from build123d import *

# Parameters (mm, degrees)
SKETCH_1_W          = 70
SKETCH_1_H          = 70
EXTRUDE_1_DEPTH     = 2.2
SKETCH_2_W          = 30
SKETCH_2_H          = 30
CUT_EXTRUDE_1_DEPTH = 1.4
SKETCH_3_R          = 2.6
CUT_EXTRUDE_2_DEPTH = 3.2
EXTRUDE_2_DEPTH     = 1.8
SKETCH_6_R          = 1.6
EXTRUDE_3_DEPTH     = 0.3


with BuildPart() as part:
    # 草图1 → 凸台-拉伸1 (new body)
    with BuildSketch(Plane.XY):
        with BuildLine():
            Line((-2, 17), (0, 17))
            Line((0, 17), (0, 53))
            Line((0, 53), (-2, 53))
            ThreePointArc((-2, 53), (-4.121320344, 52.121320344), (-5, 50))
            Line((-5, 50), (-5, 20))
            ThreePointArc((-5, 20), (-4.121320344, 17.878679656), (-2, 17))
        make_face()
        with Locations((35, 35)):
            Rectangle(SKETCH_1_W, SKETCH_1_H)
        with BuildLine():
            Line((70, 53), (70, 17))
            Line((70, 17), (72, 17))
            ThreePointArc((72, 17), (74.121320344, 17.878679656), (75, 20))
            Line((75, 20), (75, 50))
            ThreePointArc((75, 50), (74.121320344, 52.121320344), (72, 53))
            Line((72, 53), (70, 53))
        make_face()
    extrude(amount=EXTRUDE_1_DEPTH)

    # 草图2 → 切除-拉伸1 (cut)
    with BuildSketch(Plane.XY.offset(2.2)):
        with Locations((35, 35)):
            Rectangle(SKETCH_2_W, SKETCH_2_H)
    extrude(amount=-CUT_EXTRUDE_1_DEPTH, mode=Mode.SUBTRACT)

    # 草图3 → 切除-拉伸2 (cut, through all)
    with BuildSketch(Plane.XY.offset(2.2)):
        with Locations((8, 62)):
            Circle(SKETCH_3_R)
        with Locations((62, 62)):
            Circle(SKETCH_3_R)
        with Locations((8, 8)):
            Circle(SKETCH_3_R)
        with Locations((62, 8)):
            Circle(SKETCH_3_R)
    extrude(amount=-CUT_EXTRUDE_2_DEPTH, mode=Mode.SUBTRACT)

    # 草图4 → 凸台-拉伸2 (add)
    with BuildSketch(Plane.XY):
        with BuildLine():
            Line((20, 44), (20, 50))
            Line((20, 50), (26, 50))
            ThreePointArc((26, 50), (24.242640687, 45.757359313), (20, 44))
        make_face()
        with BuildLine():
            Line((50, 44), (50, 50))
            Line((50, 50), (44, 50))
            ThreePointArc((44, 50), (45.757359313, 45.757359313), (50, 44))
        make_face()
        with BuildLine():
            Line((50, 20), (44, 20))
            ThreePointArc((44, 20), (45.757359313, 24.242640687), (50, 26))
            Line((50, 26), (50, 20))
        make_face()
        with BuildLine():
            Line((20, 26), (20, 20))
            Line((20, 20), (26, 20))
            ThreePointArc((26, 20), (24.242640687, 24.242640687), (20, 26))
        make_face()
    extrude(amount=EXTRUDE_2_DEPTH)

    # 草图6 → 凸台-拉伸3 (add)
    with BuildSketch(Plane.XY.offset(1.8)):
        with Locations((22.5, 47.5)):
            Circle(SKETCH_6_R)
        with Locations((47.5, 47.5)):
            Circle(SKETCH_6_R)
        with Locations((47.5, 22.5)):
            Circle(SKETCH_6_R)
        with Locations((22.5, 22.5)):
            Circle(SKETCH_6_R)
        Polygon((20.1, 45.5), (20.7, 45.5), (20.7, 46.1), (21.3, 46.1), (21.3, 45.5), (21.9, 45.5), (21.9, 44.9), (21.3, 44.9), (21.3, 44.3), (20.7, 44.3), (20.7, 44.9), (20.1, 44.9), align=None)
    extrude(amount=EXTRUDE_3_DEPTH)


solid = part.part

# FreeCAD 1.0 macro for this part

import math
import FreeCAD as App
import Part
import Sketcher

V = App.Vector


def add_polygon(sketch, points):
    """Adds a closed chain of lines whose ends are joined by coincident constraints."""
    first, n = sketch.GeometryCount, len(points)
    for a, b in zip(points, points[1:] + points[:1]):
        sketch.addGeometry(Part.LineSegment(App.Vector(*a, 0), App.Vector(*b, 0)), False)
    for i in range(n):
        sketch.addConstraint(Sketcher.Constraint("Coincident", first + i, 2, first + (i + 1) % n, 1))

doc = App.newDocument("Part")
body = doc.addObject("PartDesign::Body", "Body")

# Sketch on XY plane
sketch1 = body.newObject("Sketcher::SketchObject", "Sketch")
sketch1.AttachmentSupport = (doc.getObject("XY_Plane"), [""])
sketch1.MapMode = "FlatFace"
sketch1.addGeometry([
    Part.LineSegment(V(-2, 17, 0), V(0, 17, 0)),  # 0
    Part.LineSegment(V(0, 17, 0), V(0, 0, 0)),  # 1
    Part.LineSegment(V(0, 0, 0), V(70, 0, 0)),  # 2
    Part.LineSegment(V(70, 0, 0), V(70, 17, 0)),  # 3
    Part.LineSegment(V(70, 17, 0), V(72, 17, 0)),  # 4
    Part.ArcOfCircle(Part.Circle(V(72, 20, 0), V(0, 0, 1), 3), math.radians(-90), math.radians(0)),  # 5
    Part.LineSegment(V(75, 20, 0), V(75, 50, 0)),  # 6
    Part.ArcOfCircle(Part.Circle(V(72, 50, 0), V(0, 0, 1), 3), math.radians(0), math.radians(90)),  # 7
    Part.LineSegment(V(72, 53, 0), V(70, 53, 0)),  # 8
    Part.LineSegment(V(70, 53, 0), V(70, 70, 0)),  # 9
    Part.LineSegment(V(70, 70, 0), V(0, 70, 0)),  # 10
    Part.LineSegment(V(0, 70, 0), V(0, 53, 0)),  # 11
    Part.LineSegment(V(0, 53, 0), V(-2, 53, 0)),  # 12
    Part.ArcOfCircle(Part.Circle(V(-2, 50, 0), V(0, 0, 1), 3), math.radians(90), math.radians(180)),  # 13
    Part.LineSegment(V(-5, 50, 0), V(-5, 20, 0)),  # 14
    Part.ArcOfCircle(Part.Circle(V(-2, 20, 0), V(0, 0, 1), 3), math.radians(180), math.radians(270)),  # 15
], False)
sketch1.addConstraint([
    Sketcher.Constraint("Coincident", 0, 2, 1, 1),
    Sketcher.Constraint("Coincident", 1, 2, 2, 1),
    Sketcher.Constraint("Coincident", 2, 2, 3, 1),
    Sketcher.Constraint("Coincident", 3, 2, 4, 1),
    Sketcher.Constraint("Tangent", 4, 2, 5, 1),
    Sketcher.Constraint("Tangent", 5, 2, 6, 1),
    Sketcher.Constraint("Tangent", 6, 2, 7, 1),
    Sketcher.Constraint("Tangent", 7, 2, 8, 1),
    Sketcher.Constraint("Coincident", 8, 2, 9, 1),
    Sketcher.Constraint("Coincident", 9, 2, 10, 1),
    Sketcher.Constraint("Coincident", 10, 2, 11, 1),
    Sketcher.Constraint("Coincident", 11, 2, 12, 1),
    Sketcher.Constraint("Tangent", 12, 2, 13, 1),
    Sketcher.Constraint("Tangent", 13, 2, 14, 1),
    Sketcher.Constraint("Tangent", 14, 2, 15, 1),
    Sketcher.Constraint("Tangent", 15, 2, 0, 1),
    Sketcher.Constraint("Horizontal", 0),
    Sketcher.Constraint("Vertical", 1),
    Sketcher.Constraint("Horizontal", 2),
    Sketcher.Constraint("Vertical", 3),
    Sketcher.Constraint("Horizontal", 4),
    Sketcher.Constraint("Vertical", 6),
    Sketcher.Constraint("Horizontal", 8),
    Sketcher.Constraint("Vertical", 9),
    Sketcher.Constraint("Horizontal", 10),
    Sketcher.Constraint("Vertical", 11),
    Sketcher.Constraint("Horizontal", 12),
    Sketcher.Constraint("Vertical", 14),
    Sketcher.Constraint("Coincident", 1, 2, -1, 1),
    Sketcher.Constraint("Equal", 5, 7),
    Sketcher.Constraint("Equal", 7, 13),
    Sketcher.Constraint("Equal", 13, 15),
    Sketcher.Constraint("PointOnObject", 10, 2, -2),
    Sketcher.Constraint("Horizontal", 7, 3, 13, 3),
    Sketcher.Constraint("Horizontal", 5, 3, 15, 3),
    Sketcher.Constraint("Vertical", 3, 2, 8, 2),
    Sketcher.Constraint("Equal", 0, 4),
    Sketcher.Constraint("Equal", 3, 9),
    Sketcher.Constraint("Radius", 5, 3.0),
    Sketcher.Constraint("DistanceX", 0, 1, 0, 2, 2.0),
    Sketcher.Constraint("DistanceX", 2, 1, 2, 2, 70.0),
    Sketcher.Constraint("DistanceY", 1, 2, 1, 1, 17.0),
    Sketcher.Constraint("DistanceY", 6, 1, 6, 2, 30.0),
])
pad1 = body.newObject("PartDesign::Pad", "Pad")
pad1.Profile = sketch1
pad1.Length = 2.2

# Sketch on XY plane
sketch2 = body.newObject("Sketcher::SketchObject", "Sketch001")
sketch2.AttachmentSupport = (doc.getObject("XY_Plane"), [""])
sketch2.MapMode = "FlatFace"
sketch2.AttachmentOffset = App.Placement(V(0, 0, 2.2), App.Rotation())
add_polygon(sketch2, [(20, 50), (20, 20), (50, 20), (50, 50)])  # lines 0-3
sketch2.addConstraint([
    Sketcher.Constraint("Vertical", 0),
    Sketcher.Constraint("Horizontal", 1),
    Sketcher.Constraint("Vertical", 2),
    Sketcher.Constraint("Horizontal", 3),
    Sketcher.Constraint("Equal", 3, 0),
    Sketcher.Constraint("DistanceX", 1, 1, 1, 2, 30.0),
    Sketcher.Constraint("DistanceX", -1, 1, 0, 2, 20.0),
    Sketcher.Constraint("DistanceY", -1, 1, 0, 2, 20.0),
])
pocket1 = body.newObject("PartDesign::Pocket", "Pocket")
pocket1.Profile = sketch2
pocket1.Length = 1.4

# Sketch on XY plane
sketch3 = body.newObject("Sketcher::SketchObject", "Sketch002")
sketch3.AttachmentSupport = (doc.getObject("XY_Plane"), [""])
sketch3.MapMode = "FlatFace"
sketch3.AttachmentOffset = App.Placement(V(0, 0, 2.2), App.Rotation())
sketch3.addGeometry([
    Part.Circle(V(8, 62, 0), V(0, 0, 1), 2.6),
    Part.Circle(V(62, 62, 0), V(0, 0, 1), 2.6),
    Part.Circle(V(8, 8, 0), V(0, 0, 1), 2.6),
    Part.Circle(V(62, 8, 0), V(0, 0, 1), 2.6),
], False)
sketch3.addConstraint([
    Sketcher.Constraint("Equal", 0, 1),
    Sketcher.Constraint("Equal", 1, 2),
    Sketcher.Constraint("Equal", 2, 3),
    Sketcher.Constraint("Horizontal", 0, 3, 1, 3),
    Sketcher.Constraint("Horizontal", 2, 3, 3, 3),
    Sketcher.Constraint("Vertical", 0, 3, 2, 3),
    Sketcher.Constraint("Vertical", 1, 3, 3, 3),
    Sketcher.Constraint("Diameter", 0, 5.2),
    Sketcher.Constraint("DistanceX", -1, 1, 0, 3, 8.0),
    Sketcher.Constraint("DistanceY", -1, 1, 0, 3, 62.0),
    Sketcher.Constraint("DistanceX", -1, 1, 1, 3, 62.0),
    Sketcher.Constraint("DistanceY", -1, 1, 2, 3, 8.0),
])
pocket2 = body.newObject("PartDesign::Pocket", "Pocket001")
pocket2.Profile = sketch3
pocket2.Type = "ThroughAll"

# Sketch on XY plane
sketch4 = body.newObject("Sketcher::SketchObject", "Sketch003")
sketch4.AttachmentSupport = (doc.getObject("XY_Plane"), [""])
sketch4.MapMode = "FlatFace"
sketch4.addGeometry([
    Part.LineSegment(V(20, 50, 0), V(20, 44, 0)),  # 0
    Part.ArcOfCircle(Part.Circle(V(20, 50, 0), V(0, 0, 1), 6), math.radians(-90), math.radians(0)),  # 1
    Part.LineSegment(V(26, 50, 0), V(20, 50, 0)),  # 2
    Part.LineSegment(V(50, 44, 0), V(50, 50, 0)),  # 3
    Part.LineSegment(V(50, 50, 0), V(44, 50, 0)),  # 4
    Part.ArcOfCircle(Part.Circle(V(50, 50, 0), V(0, 0, 1), 6), math.radians(180), math.radians(270)),  # 5
    Part.LineSegment(V(44, 20, 0), V(50, 20, 0)),  # 6
    Part.LineSegment(V(50, 20, 0), V(50, 26, 0)),  # 7
    Part.ArcOfCircle(Part.Circle(V(50, 20, 0), V(0, 0, 1), 6), math.radians(90), math.radians(180)),  # 8
    Part.LineSegment(V(20, 26, 0), V(20, 20, 0)),  # 9
    Part.LineSegment(V(20, 20, 0), V(26, 20, 0)),  # 10
    Part.ArcOfCircle(Part.Circle(V(20, 20, 0), V(0, 0, 1), 6), math.radians(0), math.radians(90)),  # 11
], False)
sketch4.addConstraint([
    Sketcher.Constraint("Coincident", 0, 2, 1, 1),
    Sketcher.Constraint("Coincident", 1, 2, 2, 1),
    Sketcher.Constraint("Coincident", 2, 2, 0, 1),
    Sketcher.Constraint("Coincident", 3, 2, 4, 1),
    Sketcher.Constraint("Coincident", 4, 2, 5, 1),
    Sketcher.Constraint("Coincident", 5, 2, 3, 1),
    Sketcher.Constraint("Coincident", 6, 2, 7, 1),
    Sketcher.Constraint("Coincident", 7, 2, 8, 1),
    Sketcher.Constraint("Coincident", 8, 2, 6, 1),
    Sketcher.Constraint("Coincident", 9, 2, 10, 1),
    Sketcher.Constraint("Coincident", 10, 2, 11, 1),
    Sketcher.Constraint("Coincident", 11, 2, 9, 1),
    Sketcher.Constraint("Vertical", 0),
    Sketcher.Constraint("Horizontal", 2),
    Sketcher.Constraint("Vertical", 3),
    Sketcher.Constraint("Horizontal", 4),
    Sketcher.Constraint("Horizontal", 6),
    Sketcher.Constraint("Vertical", 7),
    Sketcher.Constraint("Vertical", 9),
    Sketcher.Constraint("Horizontal", 10),
    Sketcher.Constraint("Coincident", 2, 2, 1, 3),
    Sketcher.Constraint("Coincident", 3, 2, 5, 3),
    Sketcher.Constraint("Coincident", 6, 2, 8, 3),
    Sketcher.Constraint("Coincident", 9, 2, 11, 3),
    Sketcher.Constraint("Equal", 1, 5),
    Sketcher.Constraint("Equal", 5, 8),
    Sketcher.Constraint("Equal", 8, 11),
    Sketcher.Constraint("Horizontal", 1, 3, 5, 3),
    Sketcher.Constraint("Horizontal", 8, 3, 11, 3),
    Sketcher.Constraint("Vertical", 5, 3, 8, 3),
    Sketcher.Constraint("Vertical", 1, 3, 11, 3),
    Sketcher.Constraint("Radius", 1, 6.0),
    Sketcher.Constraint("DistanceX", -1, 1, 1, 3, 20.0),
    Sketcher.Constraint("DistanceY", -1, 1, 1, 3, 50.0),
    Sketcher.Constraint("DistanceX", -1, 1, 5, 3, 50.0),
    Sketcher.Constraint("DistanceY", -1, 1, 8, 3, 20.0),
])
pad2 = body.newObject("PartDesign::Pad", "Pad001")
pad2.Profile = sketch4
pad2.Length = 1.8

# Sketch on XY plane
sketch5 = body.newObject("Sketcher::SketchObject", "Sketch004")
sketch5.AttachmentSupport = (doc.getObject("XY_Plane"), [""])
sketch5.MapMode = "FlatFace"
sketch5.AttachmentOffset = App.Placement(V(0, 0, 1.8), App.Rotation())
sketch5.addGeometry(Part.Circle(V(22.5, 47.5, 0), V(0, 0, 1), 1.6), False)  # 0
sketch5.addGeometry(Part.Circle(V(47.5, 47.5, 0), V(0, 0, 1), 1.6), False)  # 1
sketch5.addGeometry(Part.Circle(V(47.5, 22.5, 0), V(0, 0, 1), 1.6), False)  # 2
sketch5.addGeometry(Part.Circle(V(22.5, 22.5, 0), V(0, 0, 1), 1.6), False)  # 3
add_polygon(sketch5, [(20.7, 45.5), (20.1, 45.5), (20.1, 44.9), (20.7, 44.9), (20.7, 44.3), (21.3, 44.3), (21.3, 44.9), (21.9, 44.9), (21.9, 45.5), (21.3, 45.5), (21.3, 46.1), (20.7, 46.1)])  # lines 4-15
sketch5.addConstraint([
    Sketcher.Constraint("Horizontal", 4),
    Sketcher.Constraint("Vertical", 5),
    Sketcher.Constraint("Horizontal", 6),
    Sketcher.Constraint("Vertical", 7),
    Sketcher.Constraint("Horizontal", 8),
    Sketcher.Constraint("Vertical", 9),
    Sketcher.Constraint("Horizontal", 10),
    Sketcher.Constraint("Vertical", 11),
    Sketcher.Constraint("Horizontal", 12),
    Sketcher.Constraint("Vertical", 13),
    Sketcher.Constraint("Horizontal", 14),
    Sketcher.Constraint("Vertical", 15),
    Sketcher.Constraint("Equal", 0, 1),
    Sketcher.Constraint("Equal", 1, 2),
    Sketcher.Constraint("Equal", 2, 3),
    Sketcher.Constraint("Horizontal", 0, 3, 1, 3),
    Sketcher.Constraint("Horizontal", 2, 3, 3, 3),
    Sketcher.Constraint("Horizontal", 6, 2, 9, 2),
    Sketcher.Constraint("Horizontal", 4, 2, 11, 2),
    Sketcher.Constraint("Vertical", 1, 3, 2, 3),
    Sketcher.Constraint("Vertical", 0, 3, 3, 3),
    Sketcher.Constraint("Vertical", 9, 2, 12, 2),
    Sketcher.Constraint("Vertical", 7, 2, 14, 2),
    Sketcher.Constraint("Equal", 6, 8),
    Sketcher.Constraint("Equal", 8, 10),
    Sketcher.Constraint("Equal", 14, 5),
    Sketcher.Constraint("Equal", 5, 7),
    Sketcher.Constraint("Equal", 11, 13),
    Sketcher.Constraint("Diameter", 0, 3.2),
    Sketcher.Constraint("DistanceX", 4, 2, 4, 1, 0.6),
    Sketcher.Constraint("DistanceX", 0, 3, 1, 3, 25.0),
    Sketcher.Constraint("DistanceY", 2, 3, 1, 3, 25.0),
    Sketcher.Constraint("DistanceY", 4, 2, 0, 3, 2.0),
    Sketcher.Constraint("DistanceX", -1, 1, 0, 3, 22.5),
    Sketcher.Constraint("DistanceY", -1, 1, 0, 3, 47.5),
    Sketcher.Constraint("DistanceX", -1, 1, 4, 2, 20.1),
])
pad3 = body.newObject("PartDesign::Pad", "Pad002")
pad3.Profile = sketch5
pad3.Length = 0.3

doc.recompute()
